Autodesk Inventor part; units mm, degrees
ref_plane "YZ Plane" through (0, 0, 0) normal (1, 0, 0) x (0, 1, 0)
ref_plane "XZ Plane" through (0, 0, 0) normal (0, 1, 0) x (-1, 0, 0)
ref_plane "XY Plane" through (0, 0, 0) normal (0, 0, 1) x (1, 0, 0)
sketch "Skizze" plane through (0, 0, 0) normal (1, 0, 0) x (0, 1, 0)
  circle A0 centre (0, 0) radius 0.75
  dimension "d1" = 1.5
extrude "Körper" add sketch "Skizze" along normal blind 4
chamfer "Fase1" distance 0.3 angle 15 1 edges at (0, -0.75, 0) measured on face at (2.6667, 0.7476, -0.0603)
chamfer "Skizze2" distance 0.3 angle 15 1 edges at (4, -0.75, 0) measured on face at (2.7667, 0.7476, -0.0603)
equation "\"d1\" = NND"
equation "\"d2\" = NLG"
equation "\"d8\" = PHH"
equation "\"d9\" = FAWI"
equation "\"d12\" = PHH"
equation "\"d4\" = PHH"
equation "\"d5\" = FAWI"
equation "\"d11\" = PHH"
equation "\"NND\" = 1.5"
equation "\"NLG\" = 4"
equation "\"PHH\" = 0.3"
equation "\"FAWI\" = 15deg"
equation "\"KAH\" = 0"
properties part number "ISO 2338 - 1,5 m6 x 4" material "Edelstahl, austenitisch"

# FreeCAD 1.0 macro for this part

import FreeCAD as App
import Part
import Sketcher
Q = App.Units.Quantity


def edges_at(feature, points):
    """Names of the edges that pass closest to the given points."""
    edges = feature.Shape.Edges
    near = lambda p: min(range(len(edges)), key=lambda i: edges[i].distToShape(Part.Vertex(*p))[0])
    return sorted({f"Edge{near(p) + 1}" for p in points})

doc = App.newDocument("Part")
body = doc.addObject("PartDesign::Body", "Body")

# Sketch on YZ plane
sketch1 = body.newObject("Sketcher::SketchObject", "Sketch")
sketch1.AttachmentSupport = (doc.getObject("YZ_Plane"), [""])
sketch1.MapMode = "FlatFace"
sketch1.addGeometry(Part.Circle(App.Vector(0, 0, 0), App.Vector(0, 0, 1), 0.75), False)
sketch1.addConstraint([
    Sketcher.Constraint("Coincident", 0, 3, -1, 1),
    Sketcher.Constraint("Diameter", 0, Q("1.5 mm")),
])
pad1 = body.newObject("PartDesign::Pad", "Pad")
pad1.Profile = sketch1
pad1.Length = 4
doc.recompute()

chamfer = body.newObject("PartDesign::Chamfer", "Chamfer")
chamfer.Base = (pad1, edges_at(pad1, [(0, -0.75, 0)]))
chamfer.ChamferType = "Distance and Angle"
chamfer.Size = 0.3
chamfer.Angle = 15
doc.recompute()

chamfer2 = body.newObject("PartDesign::Chamfer", "Chamfer001")
chamfer2.Base = (chamfer, edges_at(chamfer, [(4, -0.75, 0)]))
chamfer2.ChamferType = "Distance and Angle"
chamfer2.Size = 0.3
chamfer2.Angle = 15

doc.recompute()
